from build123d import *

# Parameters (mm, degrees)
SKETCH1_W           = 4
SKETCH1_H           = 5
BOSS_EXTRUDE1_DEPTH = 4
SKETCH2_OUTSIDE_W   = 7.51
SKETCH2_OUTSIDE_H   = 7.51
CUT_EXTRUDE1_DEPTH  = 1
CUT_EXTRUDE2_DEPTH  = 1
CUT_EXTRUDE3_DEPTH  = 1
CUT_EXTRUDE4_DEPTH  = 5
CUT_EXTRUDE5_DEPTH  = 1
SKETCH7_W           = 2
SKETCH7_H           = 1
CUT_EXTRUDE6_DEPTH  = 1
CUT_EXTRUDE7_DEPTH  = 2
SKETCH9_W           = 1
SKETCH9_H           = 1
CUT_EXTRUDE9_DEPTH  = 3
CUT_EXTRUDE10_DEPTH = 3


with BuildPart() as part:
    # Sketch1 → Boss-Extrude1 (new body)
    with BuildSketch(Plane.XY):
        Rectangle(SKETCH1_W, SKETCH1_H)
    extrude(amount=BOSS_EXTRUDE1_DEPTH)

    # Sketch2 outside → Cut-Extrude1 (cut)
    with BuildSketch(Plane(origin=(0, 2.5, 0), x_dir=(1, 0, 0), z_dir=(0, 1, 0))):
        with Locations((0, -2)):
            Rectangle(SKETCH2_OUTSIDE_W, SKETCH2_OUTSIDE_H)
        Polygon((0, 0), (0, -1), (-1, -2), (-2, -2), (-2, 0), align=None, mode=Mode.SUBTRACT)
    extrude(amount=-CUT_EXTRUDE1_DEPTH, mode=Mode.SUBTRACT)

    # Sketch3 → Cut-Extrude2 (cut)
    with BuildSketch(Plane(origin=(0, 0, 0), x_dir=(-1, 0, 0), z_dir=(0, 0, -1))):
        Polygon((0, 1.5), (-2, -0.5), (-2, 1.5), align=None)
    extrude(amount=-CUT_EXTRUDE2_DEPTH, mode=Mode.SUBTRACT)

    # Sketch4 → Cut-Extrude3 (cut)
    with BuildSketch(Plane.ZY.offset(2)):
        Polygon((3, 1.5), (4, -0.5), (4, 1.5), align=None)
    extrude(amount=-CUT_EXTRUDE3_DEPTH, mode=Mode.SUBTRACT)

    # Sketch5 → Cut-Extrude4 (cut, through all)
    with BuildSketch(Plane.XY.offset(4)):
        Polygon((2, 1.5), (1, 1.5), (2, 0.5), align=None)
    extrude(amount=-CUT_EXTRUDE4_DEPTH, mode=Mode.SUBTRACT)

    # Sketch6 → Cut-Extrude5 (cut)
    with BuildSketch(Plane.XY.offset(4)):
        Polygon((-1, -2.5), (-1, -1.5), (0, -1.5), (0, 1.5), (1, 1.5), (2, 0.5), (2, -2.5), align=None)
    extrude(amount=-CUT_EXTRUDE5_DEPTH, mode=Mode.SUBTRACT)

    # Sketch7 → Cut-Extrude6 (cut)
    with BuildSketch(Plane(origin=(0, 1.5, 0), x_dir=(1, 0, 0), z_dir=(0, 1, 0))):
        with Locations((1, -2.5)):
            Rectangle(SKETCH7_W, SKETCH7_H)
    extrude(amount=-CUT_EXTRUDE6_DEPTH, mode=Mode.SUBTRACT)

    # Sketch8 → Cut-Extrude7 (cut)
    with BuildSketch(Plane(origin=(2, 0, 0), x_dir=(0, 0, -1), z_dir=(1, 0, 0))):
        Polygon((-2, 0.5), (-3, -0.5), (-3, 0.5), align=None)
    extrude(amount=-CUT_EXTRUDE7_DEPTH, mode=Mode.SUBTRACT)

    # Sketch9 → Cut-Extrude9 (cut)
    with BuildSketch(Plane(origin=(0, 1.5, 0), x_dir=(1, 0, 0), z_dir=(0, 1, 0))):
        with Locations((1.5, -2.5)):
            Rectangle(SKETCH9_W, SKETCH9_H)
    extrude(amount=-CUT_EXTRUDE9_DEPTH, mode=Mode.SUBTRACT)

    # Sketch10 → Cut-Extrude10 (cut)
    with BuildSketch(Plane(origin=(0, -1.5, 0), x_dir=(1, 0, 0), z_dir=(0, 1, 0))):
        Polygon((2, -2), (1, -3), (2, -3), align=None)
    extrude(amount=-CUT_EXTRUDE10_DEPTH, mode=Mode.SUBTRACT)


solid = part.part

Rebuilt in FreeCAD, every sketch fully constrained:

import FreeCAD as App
import Part
import Sketcher
from FreeCAD import Vector


def add_polygon(sketch, points):
    """Adds a closed chain of lines whose ends are joined by coincident constraints."""
    first, n = sketch.GeometryCount, len(points)
    for a, b in zip(points, points[1:] + points[:1]):
        sketch.addGeometry(Part.LineSegment(App.Vector(*a, 0), App.Vector(*b, 0)), False)
    for i in range(n):
        sketch.addConstraint(Sketcher.Constraint("Coincident", first + i, 2, first + (i + 1) % n, 1))

doc = App.newDocument("Part")
body = doc.addObject("PartDesign::Body", "Body")

sketch1 = body.newObject("Sketcher::SketchObject", "Sketch")
sketch1.AttachmentSupport = (doc.getObject("XY_Plane"), [""])
sketch1.MapMode = "FlatFace"
add_polygon(sketch1, [(-2, 2.5), (-2, -2.5), (2, -2.5), (2, 2.5)])
sketch1.addConstraint(Sketcher.Constraint("Vertical", 0))
sketch1.addConstraint(Sketcher.Constraint("Horizontal", 1))
sketch1.addConstraint(Sketcher.Constraint("Vertical", 2))
sketch1.addConstraint(Sketcher.Constraint("Horizontal", 3))
sketch1.addConstraint(Sketcher.Constraint("Symmetric", 0, 2, 2, 2, -1, 1))
sketch1.addConstraint(Sketcher.Constraint("DistanceX", 1, 1, 1, 2, 4.0))
sketch1.addConstraint(Sketcher.Constraint("DistanceY", 0, 2, 0, 1, 5.0))
pad1 = body.newObject("PartDesign::Pad", "Pad")
pad1.Profile = sketch1
pad1.Length = 4

sketch2 = body.newObject("Sketcher::SketchObject", "Sketch001")
sketch2.AttachmentSupport = (doc.getObject("XZ_Plane"), [""])
sketch2.MapMode = "FlatFace"
sketch2.AttachmentOffset = App.Placement(Vector(0, 0, -2.5), App.Rotation())
add_polygon(sketch2, [(-3.8, -1.8), (-3.8, 5.8), (3.8, 5.8), (3.8, -1.8)])
add_polygon(sketch2, [(-2, 0), (0, 0), (0, 1), (-1, 2), (-2, 2)])
sketch2.addConstraint(Sketcher.Constraint("Vertical", 0))
sketch2.addConstraint(Sketcher.Constraint("Horizontal", 1))
sketch2.addConstraint(Sketcher.Constraint("Vertical", 2))
sketch2.addConstraint(Sketcher.Constraint("Horizontal", 3))
sketch2.addConstraint(Sketcher.Constraint("Horizontal", 4))
sketch2.addConstraint(Sketcher.Constraint("Vertical", 5))
sketch2.addConstraint(Sketcher.Constraint("Horizontal", 7))
sketch2.addConstraint(Sketcher.Constraint("Vertical", 8))
sketch2.addConstraint(Sketcher.Constraint("Coincident", 4, 2, -1, 1))
sketch2.addConstraint(Sketcher.Constraint("Equal", 3, 0))
sketch2.addConstraint(Sketcher.Constraint("Equal", 7, 5))
sketch2.addConstraint(Sketcher.Constraint("Equal", 4, 8))
sketch2.addConstraint(Sketcher.Constraint("DistanceX", 4, 1, 4, 2, 2.0))
sketch2.addConstraint(Sketcher.Constraint("DistanceX", 7, 2, 7, 1, 1.0))
sketch2.addConstraint(Sketcher.Constraint("DistanceX", 1, 1, 1, 2, 7.51))
sketch2.addConstraint(Sketcher.Constraint("DistanceX", 0, 2, -1, 1, 3.755))
sketch2.addConstraint(Sketcher.Constraint("DistanceY", -1, 1, 0, 2, 5.755))
pocket1 = body.newObject("PartDesign::Pocket", "Pocket")
pocket1.Profile = sketch2
pocket1.Length = 1
pocket1.Reversed = True

sketch3 = body.newObject("Sketcher::SketchObject", "Sketch002")
sketch3.AttachmentSupport = (doc.getObject("XY_Plane"), [""])
sketch3.MapMode = "FlatFace"
add_polygon(sketch3, [(2, -0.5), (0, 1.5), (2, 1.5)])
sketch3.addConstraint(Sketcher.Constraint("Horizontal", 1))
sketch3.addConstraint(Sketcher.Constraint("Vertical", 2))
sketch3.addConstraint(Sketcher.Constraint("PointOnObject", 0, 2, -2))
sketch3.addConstraint(Sketcher.Constraint("Equal", 1, 2))
sketch3.addConstraint(Sketcher.Constraint("DistanceX", 1, 1, 1, 2, 2.0))
sketch3.addConstraint(Sketcher.Constraint("DistanceY", -1, 1, 0, 2, 1.5))
pocket2 = body.newObject("PartDesign::Pocket", "Pocket001")
pocket2.Profile = sketch3
pocket2.Length = 1
pocket2.Reversed = True

sketch4 = body.newObject("Sketcher::SketchObject", "Sketch003")
sketch4.AttachmentSupport = (doc.getObject("YZ_Plane"), [""])
sketch4.MapMode = "FlatFace"
sketch4.AttachmentOffset = App.Placement(Vector(0, 0, -2), App.Rotation())
add_polygon(sketch4, [(1.5, 3), (-0.5, 4), (1.5, 4)])
sketch4.addConstraint(Sketcher.Constraint("Horizontal", 1))
sketch4.addConstraint(Sketcher.Constraint("Vertical", 2))
sketch4.addConstraint(Sketcher.Constraint("DistanceX", 1, 1, 1, 2, 2.0))
sketch4.addConstraint(Sketcher.Constraint("DistanceY", 2, 2, 2, 1, 1.0))
sketch4.addConstraint(Sketcher.Constraint("DistanceY", -1, 1, 0, 2, 4.0))
sketch4.addConstraint(Sketcher.Constraint("DistanceX", 0, 2, -1, 1, 0.5))
pocket3 = body.newObject("PartDesign::Pocket", "Pocket002")
pocket3.Profile = sketch4
pocket3.Length = 1
pocket3.Reversed = True

sketch5 = body.newObject("Sketcher::SketchObject", "Sketch004")
sketch5.AttachmentSupport = (doc.getObject("XY_Plane"), [""])
sketch5.MapMode = "FlatFace"
sketch5.AttachmentOffset = App.Placement(Vector(0, 0, 4), App.Rotation())
add_polygon(sketch5, [(2, 1.5), (1, 1.5), (2, 0.5)])
sketch5.addConstraint(Sketcher.Constraint("Horizontal", 0))
sketch5.addConstraint(Sketcher.Constraint("Vertical", 2))
sketch5.addConstraint(Sketcher.Constraint("Equal", 0, 2))
sketch5.addConstraint(Sketcher.Constraint("DistanceX", 0, 2, 0, 1, 1.0))
sketch5.addConstraint(Sketcher.Constraint("DistanceX", -1, 1, 0, 2, 1.0))
sketch5.addConstraint(Sketcher.Constraint("DistanceY", -1, 1, 0, 2, 1.5))
pocket4 = body.newObject("PartDesign::Pocket", "Pocket003")
pocket4.Profile = sketch5
pocket4.Type = "ThroughAll"

sketch6 = body.newObject("Sketcher::SketchObject", "Sketch005")
sketch6.AttachmentSupport = (doc.getObject("XY_Plane"), [""])
sketch6.MapMode = "FlatFace"
sketch6.AttachmentOffset = App.Placement(Vector(0, 0, 4), App.Rotation())
add_polygon(sketch6, [(-1, -1.5), (-1, -2.5), (2, -2.5), (2, 0.5), (1, 1.5), (0, 1.5), (0, -1.5)])
sketch6.addConstraint(Sketcher.Constraint("Vertical", 0))
sketch6.addConstraint(Sketcher.Constraint("Horizontal", 1))
sketch6.addConstraint(Sketcher.Constraint("Vertical", 2))
sketch6.addConstraint(Sketcher.Constraint("Horizontal", 4))
sketch6.addConstraint(Sketcher.Constraint("Vertical", 5))
sketch6.addConstraint(Sketcher.Constraint("Horizontal", 6))
sketch6.addConstraint(Sketcher.Constraint("Symmetric", 4, 2, 5, 2, -1, 1))
sketch6.addConstraint(Sketcher.Constraint("Equal", 4, 6))
sketch6.addConstraint(Sketcher.Constraint("Equal", 6, 0))
sketch6.addConstraint(Sketcher.Constraint("Equal", 1, 2))
sketch6.addConstraint(Sketcher.Constraint("Equal", 2, 5))
sketch6.addConstraint(Sketcher.Constraint("DistanceX", 1, 1, 1, 2, 3.0))
sketch6.addConstraint(Sketcher.Constraint("DistanceX", 4, 2, 4, 1, 1.0))
pocket5 = body.newObject("PartDesign::Pocket", "Pocket004")
pocket5.Profile = sketch6
pocket5.Length = 1

sketch7 = body.newObject("Sketcher::SketchObject", "Sketch006")
sketch7.AttachmentSupport = (doc.getObject("XZ_Plane"), [""])
sketch7.MapMode = "FlatFace"
sketch7.AttachmentOffset = App.Placement(Vector(0, 0, -1.5), App.Rotation())
add_polygon(sketch7, [(0, 2), (0, 3), (2, 3), (2, 2)])
sketch7.addConstraint(Sketcher.Constraint("Vertical", 0))
sketch7.addConstraint(Sketcher.Constraint("Horizontal", 1))
sketch7.addConstraint(Sketcher.Constraint("Vertical", 2))
sketch7.addConstraint(Sketcher.Constraint("Horizontal", 3))
sketch7.addConstraint(Sketcher.Constraint("PointOnObject", 0, 2, -2))
sketch7.addConstraint(Sketcher.Constraint("DistanceX", 1, 1, 1, 2, 2.0))
sketch7.addConstraint(Sketcher.Constraint("DistanceY", 0, 1, 0, 2, 1.0))
sketch7.addConstraint(Sketcher.Constraint("DistanceY", -1, 1, 0, 2, 3.0))
pocket6 = body.newObject("PartDesign::Pocket", "Pocket005")
pocket6.Profile = sketch7
pocket6.Length = 1
pocket6.Reversed = True

sketch8 = body.newObject("Sketcher::SketchObject", "Sketch007")
sketch8.AttachmentSupport = (doc.getObject("YZ_Plane"), [""])
sketch8.MapMode = "FlatFace"
sketch8.AttachmentOffset = App.Placement(Vector(0, 0, 2), App.Rotation())
add_polygon(sketch8, [(-0.5, 3), (0.5, 2), (0.5, 3)])
sketch8.addConstraint(Sketcher.Constraint("Vertical", 1))
sketch8.addConstraint(Sketcher.Constraint("Horizontal", 2))
sketch8.addConstraint(Sketcher.Constraint("Equal", 2, 1))
sketch8.addConstraint(Sketcher.Constraint("DistanceX", 2, 2, 2, 1, 1.0))
sketch8.addConstraint(Sketcher.Constraint("DistanceY", -1, 1, 0, 2, 2.0))
sketch8.addConstraint(Sketcher.Constraint("DistanceX", -1, 1, 0, 2, 0.5))
pocket7 = body.newObject("PartDesign::Pocket", "Pocket006")
pocket7.Profile = sketch8
pocket7.Length = 2

sketch9 = body.newObject("Sketcher::SketchObject", "Sketch008")
sketch9.AttachmentSupport = (doc.getObject("XZ_Plane"), [""])
sketch9.MapMode = "FlatFace"
sketch9.AttachmentOffset = App.Placement(Vector(0, 0, -1.5), App.Rotation())
add_polygon(sketch9, [(1, 2), (1, 3), (2, 3), (2, 2)])
sketch9.addConstraint(Sketcher.Constraint("Vertical", 0))
sketch9.addConstraint(Sketcher.Constraint("Horizontal", 1))
sketch9.addConstraint(Sketcher.Constraint("Vertical", 2))
sketch9.addConstraint(Sketcher.Constraint("Horizontal", 3))
sketch9.addConstraint(Sketcher.Constraint("Equal", 3, 0))
sketch9.addConstraint(Sketcher.Constraint("DistanceX", 1, 1, 1, 2, 1.0))
sketch9.addConstraint(Sketcher.Constraint("DistanceX", -1, 1, 0, 2, 1.0))
sketch9.addConstraint(Sketcher.Constraint("DistanceY", -1, 1, 0, 2, 3.0))
pocket8 = body.newObject("PartDesign::Pocket", "Pocket007")
pocket8.Profile = sketch9
pocket8.Length = 3
pocket8.Reversed = True

sketch10 = body.newObject("Sketcher::SketchObject", "Sketch009")
sketch10.AttachmentSupport = (doc.getObject("XZ_Plane"), [""])
sketch10.MapMode = "FlatFace"
sketch10.AttachmentOffset = App.Placement(Vector(0, 0, 1.5), App.Rotation())
add_polygon(sketch10, [(2, 2), (1, 3), (2, 3)])
sketch10.addConstraint(Sketcher.Constraint("Horizontal", 1))
sketch10.addConstraint(Sketcher.Constraint("Vertical", 2))
sketch10.addConstraint(Sketcher.Constraint("Equal", 1, 2))
sketch10.addConstraint(Sketcher.Constraint("DistanceX", 1, 1, 1, 2, 1.0))
sketch10.addConstraint(Sketcher.Constraint("DistanceX", -1, 1, 0, 2, 1.0))
sketch10.addConstraint(Sketcher.Constraint("DistanceY", -1, 1, 0, 2, 3.0))
pocket9 = body.newObject("PartDesign::Pocket", "Pocket008")
pocket9.Profile = sketch10
pocket9.Length = 3
pocket9.Reversed = True

doc.recompute()
